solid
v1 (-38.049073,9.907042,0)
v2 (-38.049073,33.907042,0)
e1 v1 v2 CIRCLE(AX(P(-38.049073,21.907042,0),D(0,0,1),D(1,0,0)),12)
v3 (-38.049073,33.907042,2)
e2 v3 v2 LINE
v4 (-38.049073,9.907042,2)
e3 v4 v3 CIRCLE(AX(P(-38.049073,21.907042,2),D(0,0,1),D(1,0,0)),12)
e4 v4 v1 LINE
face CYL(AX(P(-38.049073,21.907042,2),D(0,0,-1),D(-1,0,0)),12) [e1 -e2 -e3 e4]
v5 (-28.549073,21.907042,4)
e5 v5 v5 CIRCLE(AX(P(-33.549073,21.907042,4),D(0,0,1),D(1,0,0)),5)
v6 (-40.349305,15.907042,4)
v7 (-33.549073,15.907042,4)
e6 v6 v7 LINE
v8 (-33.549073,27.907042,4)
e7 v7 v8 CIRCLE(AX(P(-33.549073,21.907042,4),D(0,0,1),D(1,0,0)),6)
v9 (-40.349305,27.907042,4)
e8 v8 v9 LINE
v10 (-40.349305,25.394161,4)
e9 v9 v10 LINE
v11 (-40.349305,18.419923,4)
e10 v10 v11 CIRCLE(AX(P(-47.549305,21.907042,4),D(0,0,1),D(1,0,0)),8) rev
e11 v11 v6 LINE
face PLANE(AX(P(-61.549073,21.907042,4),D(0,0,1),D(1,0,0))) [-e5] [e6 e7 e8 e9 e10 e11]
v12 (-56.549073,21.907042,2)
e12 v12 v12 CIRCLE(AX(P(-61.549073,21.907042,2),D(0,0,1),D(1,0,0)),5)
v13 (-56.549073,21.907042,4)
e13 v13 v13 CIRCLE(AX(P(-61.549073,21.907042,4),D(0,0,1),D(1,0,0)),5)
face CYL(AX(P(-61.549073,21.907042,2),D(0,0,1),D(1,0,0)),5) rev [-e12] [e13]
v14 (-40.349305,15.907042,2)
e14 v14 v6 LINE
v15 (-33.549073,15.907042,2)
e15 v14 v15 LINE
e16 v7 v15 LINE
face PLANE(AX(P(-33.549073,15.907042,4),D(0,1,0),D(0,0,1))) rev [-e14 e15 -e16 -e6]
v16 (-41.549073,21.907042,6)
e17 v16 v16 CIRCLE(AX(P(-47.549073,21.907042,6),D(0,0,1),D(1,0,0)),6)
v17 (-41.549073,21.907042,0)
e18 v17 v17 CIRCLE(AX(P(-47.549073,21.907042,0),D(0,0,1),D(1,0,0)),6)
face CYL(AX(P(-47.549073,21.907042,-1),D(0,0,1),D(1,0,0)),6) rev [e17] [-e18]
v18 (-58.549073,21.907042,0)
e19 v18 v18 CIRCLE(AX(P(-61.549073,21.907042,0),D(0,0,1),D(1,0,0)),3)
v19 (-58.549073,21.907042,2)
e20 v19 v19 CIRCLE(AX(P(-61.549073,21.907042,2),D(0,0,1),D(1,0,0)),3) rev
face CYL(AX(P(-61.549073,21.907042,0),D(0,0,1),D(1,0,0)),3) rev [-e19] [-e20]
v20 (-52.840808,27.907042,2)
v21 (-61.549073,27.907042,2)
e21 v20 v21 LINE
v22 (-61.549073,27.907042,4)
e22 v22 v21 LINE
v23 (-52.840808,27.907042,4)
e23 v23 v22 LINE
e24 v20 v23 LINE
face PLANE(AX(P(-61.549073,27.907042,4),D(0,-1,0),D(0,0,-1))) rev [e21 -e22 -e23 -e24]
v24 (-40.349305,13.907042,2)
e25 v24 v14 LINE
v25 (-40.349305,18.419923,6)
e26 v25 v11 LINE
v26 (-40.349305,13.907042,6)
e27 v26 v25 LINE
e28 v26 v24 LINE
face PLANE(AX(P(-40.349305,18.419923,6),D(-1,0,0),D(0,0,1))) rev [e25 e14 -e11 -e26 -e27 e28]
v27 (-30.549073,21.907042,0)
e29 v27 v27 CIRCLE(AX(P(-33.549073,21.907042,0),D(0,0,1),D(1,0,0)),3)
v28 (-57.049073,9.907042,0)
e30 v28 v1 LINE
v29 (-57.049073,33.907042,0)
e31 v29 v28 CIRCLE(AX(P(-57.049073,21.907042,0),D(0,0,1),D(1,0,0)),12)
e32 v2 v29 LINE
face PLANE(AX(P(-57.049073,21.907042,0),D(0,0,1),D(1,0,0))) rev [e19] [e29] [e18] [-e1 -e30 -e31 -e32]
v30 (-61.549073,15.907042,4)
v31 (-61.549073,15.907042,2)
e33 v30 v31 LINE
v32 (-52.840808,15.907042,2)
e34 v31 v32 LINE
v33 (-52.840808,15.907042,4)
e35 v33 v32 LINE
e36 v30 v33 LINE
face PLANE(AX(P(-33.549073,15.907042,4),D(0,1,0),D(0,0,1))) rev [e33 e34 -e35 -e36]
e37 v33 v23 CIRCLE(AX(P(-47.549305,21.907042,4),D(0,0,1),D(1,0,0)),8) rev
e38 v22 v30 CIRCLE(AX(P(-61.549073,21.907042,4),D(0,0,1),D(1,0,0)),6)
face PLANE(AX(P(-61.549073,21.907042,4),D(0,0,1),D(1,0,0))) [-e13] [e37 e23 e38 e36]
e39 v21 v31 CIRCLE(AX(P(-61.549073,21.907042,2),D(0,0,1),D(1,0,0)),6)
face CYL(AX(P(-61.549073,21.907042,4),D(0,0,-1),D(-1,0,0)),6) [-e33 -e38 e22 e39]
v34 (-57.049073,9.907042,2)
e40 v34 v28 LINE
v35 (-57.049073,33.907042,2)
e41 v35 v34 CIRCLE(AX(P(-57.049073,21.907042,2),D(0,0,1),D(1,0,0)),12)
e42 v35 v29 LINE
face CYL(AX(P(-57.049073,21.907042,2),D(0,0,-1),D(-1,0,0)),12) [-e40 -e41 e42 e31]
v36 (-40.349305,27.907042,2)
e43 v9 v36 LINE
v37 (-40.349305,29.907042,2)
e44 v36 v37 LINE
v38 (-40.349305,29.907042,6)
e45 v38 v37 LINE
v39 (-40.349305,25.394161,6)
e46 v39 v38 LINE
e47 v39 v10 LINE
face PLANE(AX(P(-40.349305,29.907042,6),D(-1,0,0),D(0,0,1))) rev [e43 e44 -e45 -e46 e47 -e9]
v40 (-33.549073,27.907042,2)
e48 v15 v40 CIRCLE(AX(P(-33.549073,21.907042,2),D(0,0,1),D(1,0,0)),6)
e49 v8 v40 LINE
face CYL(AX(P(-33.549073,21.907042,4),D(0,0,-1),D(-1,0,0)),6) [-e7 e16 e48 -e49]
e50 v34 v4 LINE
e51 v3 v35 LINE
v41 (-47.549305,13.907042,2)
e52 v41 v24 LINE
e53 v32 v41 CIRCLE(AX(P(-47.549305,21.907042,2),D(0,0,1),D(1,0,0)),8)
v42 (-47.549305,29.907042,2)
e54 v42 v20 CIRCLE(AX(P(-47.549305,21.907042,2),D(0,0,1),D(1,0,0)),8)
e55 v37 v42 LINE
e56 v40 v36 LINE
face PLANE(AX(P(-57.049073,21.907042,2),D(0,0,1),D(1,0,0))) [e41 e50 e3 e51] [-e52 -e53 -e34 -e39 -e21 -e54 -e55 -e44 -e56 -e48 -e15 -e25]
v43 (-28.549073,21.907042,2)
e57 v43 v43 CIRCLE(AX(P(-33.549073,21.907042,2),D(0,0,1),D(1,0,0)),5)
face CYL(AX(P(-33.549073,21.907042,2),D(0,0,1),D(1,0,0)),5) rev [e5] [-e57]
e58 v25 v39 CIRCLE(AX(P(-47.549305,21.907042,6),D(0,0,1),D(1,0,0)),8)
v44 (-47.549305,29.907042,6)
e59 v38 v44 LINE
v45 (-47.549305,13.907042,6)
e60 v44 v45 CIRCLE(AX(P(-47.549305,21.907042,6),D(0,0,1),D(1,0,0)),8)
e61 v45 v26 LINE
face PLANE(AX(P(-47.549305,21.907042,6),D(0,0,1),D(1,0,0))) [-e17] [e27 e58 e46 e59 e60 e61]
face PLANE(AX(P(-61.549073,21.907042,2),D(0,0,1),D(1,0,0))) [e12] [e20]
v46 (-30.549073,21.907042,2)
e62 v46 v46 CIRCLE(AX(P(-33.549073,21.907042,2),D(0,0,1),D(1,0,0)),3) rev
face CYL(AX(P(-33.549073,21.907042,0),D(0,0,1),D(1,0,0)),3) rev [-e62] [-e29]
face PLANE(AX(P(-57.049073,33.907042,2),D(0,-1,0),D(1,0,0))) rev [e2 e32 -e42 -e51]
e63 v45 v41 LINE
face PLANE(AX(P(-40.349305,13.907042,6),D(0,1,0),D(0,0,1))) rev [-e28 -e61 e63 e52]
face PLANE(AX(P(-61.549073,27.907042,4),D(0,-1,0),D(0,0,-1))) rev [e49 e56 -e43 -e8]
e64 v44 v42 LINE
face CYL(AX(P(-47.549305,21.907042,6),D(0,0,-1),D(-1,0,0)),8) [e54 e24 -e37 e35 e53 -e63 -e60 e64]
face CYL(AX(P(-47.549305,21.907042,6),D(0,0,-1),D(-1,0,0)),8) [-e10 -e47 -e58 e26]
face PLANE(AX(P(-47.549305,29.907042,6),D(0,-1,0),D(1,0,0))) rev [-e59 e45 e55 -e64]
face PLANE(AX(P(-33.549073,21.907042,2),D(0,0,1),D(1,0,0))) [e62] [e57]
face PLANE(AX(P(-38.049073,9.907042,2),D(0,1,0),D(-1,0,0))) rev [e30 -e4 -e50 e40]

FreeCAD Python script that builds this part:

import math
import FreeCAD as App
import Part
import Sketcher

V = App.Vector
Q = App.Units.Quantity

doc = App.newDocument("Part")
body = doc.addObject("PartDesign::Body", "Body")

# Sketch on XY plane
sketch1 = body.newObject("Sketcher::SketchObject", "Sketch")
sketch1.AttachmentSupport = (doc.getObject("XY_Plane"), [""])
sketch1.MapMode = "FlatFace"
sketch1.addGeometry([
    Part.LineSegment(V(-38, 34, 0), V(-57, 34, 0)),
    Part.ArcOfCircle(Part.Circle(V(-57, 22, 0), V(0, 0, 1), 12), math.radians(90), math.radians(270)),
    Part.LineSegment(V(-57, 10, 0), V(-38, 10, 0)),
    Part.ArcOfCircle(Part.Circle(V(-38, 22, 0), V(0, 0, 1), 12), math.radians(-90), math.radians(90)),
], False)
sketch1.addConstraint([
    Sketcher.Constraint("Tangent", 0, 2, 1, 1),
    Sketcher.Constraint("Tangent", 1, 2, 2, 1),
    Sketcher.Constraint("Tangent", 2, 2, 3, 1),
    Sketcher.Constraint("Tangent", 3, 2, 0, 1),
    Sketcher.Constraint("Horizontal", 0),
    Sketcher.Constraint("Horizontal", 2),
    Sketcher.Constraint("Radius", 1, Q("12 mm")),
    Sketcher.Constraint("DistanceX", 0, 2, 0, 1, Q("19 mm")),
    Sketcher.Constraint("DistanceY", -1, 1, 0, 2, Q("33.907042 mm")),
    Sketcher.Constraint("DistanceX", 1, 3, -1, 1, Q("57.049073 mm")),
])
pad1 = body.newObject("PartDesign::Pad", "Pad")
pad1.Profile = sketch1
pad1.Length = 2

# Sketch on XY plane
sketch2 = body.newObject("Sketcher::SketchObject", "Sketch001")
sketch2.AttachmentSupport = (doc.getObject("XY_Plane"), [""])
sketch2.MapMode = "FlatFace"
sketch2.AttachmentOffset = App.Placement(V(0, 0, 2), App.Rotation())
sketch2.addGeometry([
    Part.LineSegment(V(-34, 28, 0), V(-62, 28, 0)),
    Part.ArcOfCircle(Part.Circle(V(-62, 22, 0), V(0, 0, 1), 6), math.radians(90), math.radians(270)),
    Part.LineSegment(V(-62, 16, 0), V(-34, 16, 0)),
    Part.ArcOfCircle(Part.Circle(V(-34, 22, 0), V(0, 0, 1), 6), math.radians(-90), math.radians(90)),
], False)
sketch2.addConstraint([
    Sketcher.Constraint("Tangent", 0, 2, 1, 1),
    Sketcher.Constraint("Tangent", 1, 2, 2, 1),
    Sketcher.Constraint("Tangent", 2, 2, 3, 1),
    Sketcher.Constraint("Tangent", 3, 2, 0, 1),
    Sketcher.Constraint("Horizontal", 0),
    Sketcher.Constraint("Horizontal", 2),
    Sketcher.Constraint("Radius", 1, Q("6 mm")),
    Sketcher.Constraint("DistanceX", 0, 2, 0, 1, Q("28 mm")),
    Sketcher.Constraint("DistanceX", 1, 3, -1, 1, Q("61.549073 mm")),
    Sketcher.Constraint("DistanceY", -1, 1, 1, 3, Q("21.907042 mm")),
])
pad2 = body.newObject("PartDesign::Pad", "Pad001")
pad2.Profile = sketch2
pad2.Length = 2

# Sketch on XY plane
sketch3 = body.newObject("Sketcher::SketchObject", "Sketch002")
sketch3.AttachmentSupport = (doc.getObject("XY_Plane"), [""])
sketch3.MapMode = "FlatFace"
sketch3.AttachmentOffset = App.Placement(V(0, 0, 2), App.Rotation())
sketch3.addGeometry([
    Part.LineSegment(V(-40.3, 29.9, 0), V(-47.5, 29.9, 0)),  # 0
    Part.ArcOfCircle(Part.Circle(V(-47.5, 21.9, 0), V(0, 0, 1), 8), math.radians(90), math.radians(270)),  # 1
    Part.LineSegment(V(-47.5, 13.9, 0), V(-40.3, 13.9, 0)),  # 2
    Part.LineSegment(V(-40.3, 13.9, 0), V(-40.3, 18.4, 0)),  # 3
    Part.ArcOfCircle(Part.Circle(V(-47.5, 21.9, 0), V(0, 0, 1), 8), math.radians(-26), math.radians(26)),  # 4
    Part.LineSegment(V(-40.3, 25.4, 0), V(-40.3, 29.9, 0)),  # 5
], False)
sketch3.addConstraint([
    Sketcher.Constraint("Tangent", 0, 2, 1, 1),
    Sketcher.Constraint("Tangent", 1, 2, 2, 1),
    Sketcher.Constraint("Coincident", 2, 2, 3, 1),
    Sketcher.Constraint("Coincident", 3, 2, 4, 1),
    Sketcher.Constraint("Coincident", 4, 2, 5, 1),
    Sketcher.Constraint("Coincident", 5, 2, 0, 1),
    Sketcher.Constraint("Horizontal", 0),
    Sketcher.Constraint("Horizontal", 2),
    Sketcher.Constraint("Vertical", 3),
    Sketcher.Constraint("Vertical", 5),
    Sketcher.Constraint("Coincident", 4, 3, 1, 3),
    Sketcher.Constraint("Equal", 1, 4),
    Sketcher.Constraint("Vertical", 3, 2, 4, 2),
    Sketcher.Constraint("Radius", 1, Q("8 mm")),
    Sketcher.Constraint("DistanceX", 0, 2, 0, 1, Q("7.2 mm")),
    Sketcher.Constraint("DistanceY", -1, 1, 4, 2, Q("25.394161 mm")),
    Sketcher.Constraint("DistanceX", 1, 3, -1, 1, Q("47.549305 mm")),
])
pad3 = body.newObject("PartDesign::Pad", "Pad002")
pad3.Profile = sketch3
pad3.Length = 4

# Sketch on XY plane
sketch4 = body.newObject("Sketcher::SketchObject", "Sketch003")
sketch4.AttachmentSupport = (doc.getObject("XY_Plane"), [""])
sketch4.MapMode = "FlatFace"
sketch4.AttachmentOffset = App.Placement(V(0, 0, 4), App.Rotation())
sketch4.addGeometry(Part.Circle(V(-48, 22, 0), V(0, 0, 1), 6), False)
sketch4.addConstraint([
    Sketcher.Constraint("Diameter", 0, Q("12 mm")),
    Sketcher.Constraint("DistanceX", 0, 3, -1, 1, Q("47.549073 mm")),
    Sketcher.Constraint("DistanceY", -1, 1, 0, 3, Q("21.907042 mm")),
])
pocket1 = body.newObject("PartDesign::Pocket", "Pocket")
pocket1.Profile = sketch4
pocket1.Length = 10
pocket1.Midplane = True

# Sketch on XY plane
sketch5 = body.newObject("Sketcher::SketchObject", "Sketch004")
sketch5.AttachmentSupport = (doc.getObject("XY_Plane"), [""])
sketch5.MapMode = "FlatFace"
sketch5.AttachmentOffset = App.Placement(V(0, 0, 4), App.Rotation())
sketch5.addGeometry([
    Part.Circle(V(-61.5, 21.9, 0), V(0, 0, 1), 3),
    Part.Circle(V(-33.5, 21.9, 0), V(0, 0, 1), 3),
], False)
sketch5.addConstraint([
    Sketcher.Constraint("Equal", 0, 1),
    Sketcher.Constraint("Horizontal", 0, 3, 1, 3),
    Sketcher.Constraint("Diameter", 0, Q("6 mm")),
    Sketcher.Constraint("DistanceX", 0, 3, 1, 3, Q("28 mm")),
    Sketcher.Constraint("DistanceX", 0, 3, -1, 1, Q("61.549073 mm")),
    Sketcher.Constraint("DistanceY", -1, 1, 0, 3, Q("21.907042 mm")),
])
pocket2 = body.newObject("PartDesign::Pocket", "Pocket001")
pocket2.Profile = sketch5
pocket2.Type = "ThroughAll"

# Sketch on XY plane
sketch6 = body.newObject("Sketcher::SketchObject", "Sketch005")
sketch6.AttachmentSupport = (doc.getObject("XY_Plane"), [""])
sketch6.MapMode = "FlatFace"
sketch6.AttachmentOffset = App.Placement(V(0, 0, 4), App.Rotation())
sketch6.addGeometry([
    Part.Circle(V(-62, 22, 0), V(0, 0, 1), 5),
    Part.Circle(V(-34, 22, 0), V(0, 0, 1), 5),
], False)
sketch6.addConstraint([
    Sketcher.Constraint("Equal", 0, 1),
    Sketcher.Constraint("Horizontal", 0, 3, 1, 3),
    Sketcher.Constraint("Diameter", 0, Q("10 mm")),
    Sketcher.Constraint("DistanceX", 0, 3, 1, 3, Q("28 mm")),
    Sketcher.Constraint("DistanceX", 0, 3, -1, 1, Q("61.549073 mm")),
    Sketcher.Constraint("DistanceY", -1, 1, 0, 3, Q("21.907042 mm")),
])
pocket3 = body.newObject("PartDesign::Pocket", "Pocket002")
pocket3.Profile = sketch6
pocket3.Length = 2

doc.recompute()
